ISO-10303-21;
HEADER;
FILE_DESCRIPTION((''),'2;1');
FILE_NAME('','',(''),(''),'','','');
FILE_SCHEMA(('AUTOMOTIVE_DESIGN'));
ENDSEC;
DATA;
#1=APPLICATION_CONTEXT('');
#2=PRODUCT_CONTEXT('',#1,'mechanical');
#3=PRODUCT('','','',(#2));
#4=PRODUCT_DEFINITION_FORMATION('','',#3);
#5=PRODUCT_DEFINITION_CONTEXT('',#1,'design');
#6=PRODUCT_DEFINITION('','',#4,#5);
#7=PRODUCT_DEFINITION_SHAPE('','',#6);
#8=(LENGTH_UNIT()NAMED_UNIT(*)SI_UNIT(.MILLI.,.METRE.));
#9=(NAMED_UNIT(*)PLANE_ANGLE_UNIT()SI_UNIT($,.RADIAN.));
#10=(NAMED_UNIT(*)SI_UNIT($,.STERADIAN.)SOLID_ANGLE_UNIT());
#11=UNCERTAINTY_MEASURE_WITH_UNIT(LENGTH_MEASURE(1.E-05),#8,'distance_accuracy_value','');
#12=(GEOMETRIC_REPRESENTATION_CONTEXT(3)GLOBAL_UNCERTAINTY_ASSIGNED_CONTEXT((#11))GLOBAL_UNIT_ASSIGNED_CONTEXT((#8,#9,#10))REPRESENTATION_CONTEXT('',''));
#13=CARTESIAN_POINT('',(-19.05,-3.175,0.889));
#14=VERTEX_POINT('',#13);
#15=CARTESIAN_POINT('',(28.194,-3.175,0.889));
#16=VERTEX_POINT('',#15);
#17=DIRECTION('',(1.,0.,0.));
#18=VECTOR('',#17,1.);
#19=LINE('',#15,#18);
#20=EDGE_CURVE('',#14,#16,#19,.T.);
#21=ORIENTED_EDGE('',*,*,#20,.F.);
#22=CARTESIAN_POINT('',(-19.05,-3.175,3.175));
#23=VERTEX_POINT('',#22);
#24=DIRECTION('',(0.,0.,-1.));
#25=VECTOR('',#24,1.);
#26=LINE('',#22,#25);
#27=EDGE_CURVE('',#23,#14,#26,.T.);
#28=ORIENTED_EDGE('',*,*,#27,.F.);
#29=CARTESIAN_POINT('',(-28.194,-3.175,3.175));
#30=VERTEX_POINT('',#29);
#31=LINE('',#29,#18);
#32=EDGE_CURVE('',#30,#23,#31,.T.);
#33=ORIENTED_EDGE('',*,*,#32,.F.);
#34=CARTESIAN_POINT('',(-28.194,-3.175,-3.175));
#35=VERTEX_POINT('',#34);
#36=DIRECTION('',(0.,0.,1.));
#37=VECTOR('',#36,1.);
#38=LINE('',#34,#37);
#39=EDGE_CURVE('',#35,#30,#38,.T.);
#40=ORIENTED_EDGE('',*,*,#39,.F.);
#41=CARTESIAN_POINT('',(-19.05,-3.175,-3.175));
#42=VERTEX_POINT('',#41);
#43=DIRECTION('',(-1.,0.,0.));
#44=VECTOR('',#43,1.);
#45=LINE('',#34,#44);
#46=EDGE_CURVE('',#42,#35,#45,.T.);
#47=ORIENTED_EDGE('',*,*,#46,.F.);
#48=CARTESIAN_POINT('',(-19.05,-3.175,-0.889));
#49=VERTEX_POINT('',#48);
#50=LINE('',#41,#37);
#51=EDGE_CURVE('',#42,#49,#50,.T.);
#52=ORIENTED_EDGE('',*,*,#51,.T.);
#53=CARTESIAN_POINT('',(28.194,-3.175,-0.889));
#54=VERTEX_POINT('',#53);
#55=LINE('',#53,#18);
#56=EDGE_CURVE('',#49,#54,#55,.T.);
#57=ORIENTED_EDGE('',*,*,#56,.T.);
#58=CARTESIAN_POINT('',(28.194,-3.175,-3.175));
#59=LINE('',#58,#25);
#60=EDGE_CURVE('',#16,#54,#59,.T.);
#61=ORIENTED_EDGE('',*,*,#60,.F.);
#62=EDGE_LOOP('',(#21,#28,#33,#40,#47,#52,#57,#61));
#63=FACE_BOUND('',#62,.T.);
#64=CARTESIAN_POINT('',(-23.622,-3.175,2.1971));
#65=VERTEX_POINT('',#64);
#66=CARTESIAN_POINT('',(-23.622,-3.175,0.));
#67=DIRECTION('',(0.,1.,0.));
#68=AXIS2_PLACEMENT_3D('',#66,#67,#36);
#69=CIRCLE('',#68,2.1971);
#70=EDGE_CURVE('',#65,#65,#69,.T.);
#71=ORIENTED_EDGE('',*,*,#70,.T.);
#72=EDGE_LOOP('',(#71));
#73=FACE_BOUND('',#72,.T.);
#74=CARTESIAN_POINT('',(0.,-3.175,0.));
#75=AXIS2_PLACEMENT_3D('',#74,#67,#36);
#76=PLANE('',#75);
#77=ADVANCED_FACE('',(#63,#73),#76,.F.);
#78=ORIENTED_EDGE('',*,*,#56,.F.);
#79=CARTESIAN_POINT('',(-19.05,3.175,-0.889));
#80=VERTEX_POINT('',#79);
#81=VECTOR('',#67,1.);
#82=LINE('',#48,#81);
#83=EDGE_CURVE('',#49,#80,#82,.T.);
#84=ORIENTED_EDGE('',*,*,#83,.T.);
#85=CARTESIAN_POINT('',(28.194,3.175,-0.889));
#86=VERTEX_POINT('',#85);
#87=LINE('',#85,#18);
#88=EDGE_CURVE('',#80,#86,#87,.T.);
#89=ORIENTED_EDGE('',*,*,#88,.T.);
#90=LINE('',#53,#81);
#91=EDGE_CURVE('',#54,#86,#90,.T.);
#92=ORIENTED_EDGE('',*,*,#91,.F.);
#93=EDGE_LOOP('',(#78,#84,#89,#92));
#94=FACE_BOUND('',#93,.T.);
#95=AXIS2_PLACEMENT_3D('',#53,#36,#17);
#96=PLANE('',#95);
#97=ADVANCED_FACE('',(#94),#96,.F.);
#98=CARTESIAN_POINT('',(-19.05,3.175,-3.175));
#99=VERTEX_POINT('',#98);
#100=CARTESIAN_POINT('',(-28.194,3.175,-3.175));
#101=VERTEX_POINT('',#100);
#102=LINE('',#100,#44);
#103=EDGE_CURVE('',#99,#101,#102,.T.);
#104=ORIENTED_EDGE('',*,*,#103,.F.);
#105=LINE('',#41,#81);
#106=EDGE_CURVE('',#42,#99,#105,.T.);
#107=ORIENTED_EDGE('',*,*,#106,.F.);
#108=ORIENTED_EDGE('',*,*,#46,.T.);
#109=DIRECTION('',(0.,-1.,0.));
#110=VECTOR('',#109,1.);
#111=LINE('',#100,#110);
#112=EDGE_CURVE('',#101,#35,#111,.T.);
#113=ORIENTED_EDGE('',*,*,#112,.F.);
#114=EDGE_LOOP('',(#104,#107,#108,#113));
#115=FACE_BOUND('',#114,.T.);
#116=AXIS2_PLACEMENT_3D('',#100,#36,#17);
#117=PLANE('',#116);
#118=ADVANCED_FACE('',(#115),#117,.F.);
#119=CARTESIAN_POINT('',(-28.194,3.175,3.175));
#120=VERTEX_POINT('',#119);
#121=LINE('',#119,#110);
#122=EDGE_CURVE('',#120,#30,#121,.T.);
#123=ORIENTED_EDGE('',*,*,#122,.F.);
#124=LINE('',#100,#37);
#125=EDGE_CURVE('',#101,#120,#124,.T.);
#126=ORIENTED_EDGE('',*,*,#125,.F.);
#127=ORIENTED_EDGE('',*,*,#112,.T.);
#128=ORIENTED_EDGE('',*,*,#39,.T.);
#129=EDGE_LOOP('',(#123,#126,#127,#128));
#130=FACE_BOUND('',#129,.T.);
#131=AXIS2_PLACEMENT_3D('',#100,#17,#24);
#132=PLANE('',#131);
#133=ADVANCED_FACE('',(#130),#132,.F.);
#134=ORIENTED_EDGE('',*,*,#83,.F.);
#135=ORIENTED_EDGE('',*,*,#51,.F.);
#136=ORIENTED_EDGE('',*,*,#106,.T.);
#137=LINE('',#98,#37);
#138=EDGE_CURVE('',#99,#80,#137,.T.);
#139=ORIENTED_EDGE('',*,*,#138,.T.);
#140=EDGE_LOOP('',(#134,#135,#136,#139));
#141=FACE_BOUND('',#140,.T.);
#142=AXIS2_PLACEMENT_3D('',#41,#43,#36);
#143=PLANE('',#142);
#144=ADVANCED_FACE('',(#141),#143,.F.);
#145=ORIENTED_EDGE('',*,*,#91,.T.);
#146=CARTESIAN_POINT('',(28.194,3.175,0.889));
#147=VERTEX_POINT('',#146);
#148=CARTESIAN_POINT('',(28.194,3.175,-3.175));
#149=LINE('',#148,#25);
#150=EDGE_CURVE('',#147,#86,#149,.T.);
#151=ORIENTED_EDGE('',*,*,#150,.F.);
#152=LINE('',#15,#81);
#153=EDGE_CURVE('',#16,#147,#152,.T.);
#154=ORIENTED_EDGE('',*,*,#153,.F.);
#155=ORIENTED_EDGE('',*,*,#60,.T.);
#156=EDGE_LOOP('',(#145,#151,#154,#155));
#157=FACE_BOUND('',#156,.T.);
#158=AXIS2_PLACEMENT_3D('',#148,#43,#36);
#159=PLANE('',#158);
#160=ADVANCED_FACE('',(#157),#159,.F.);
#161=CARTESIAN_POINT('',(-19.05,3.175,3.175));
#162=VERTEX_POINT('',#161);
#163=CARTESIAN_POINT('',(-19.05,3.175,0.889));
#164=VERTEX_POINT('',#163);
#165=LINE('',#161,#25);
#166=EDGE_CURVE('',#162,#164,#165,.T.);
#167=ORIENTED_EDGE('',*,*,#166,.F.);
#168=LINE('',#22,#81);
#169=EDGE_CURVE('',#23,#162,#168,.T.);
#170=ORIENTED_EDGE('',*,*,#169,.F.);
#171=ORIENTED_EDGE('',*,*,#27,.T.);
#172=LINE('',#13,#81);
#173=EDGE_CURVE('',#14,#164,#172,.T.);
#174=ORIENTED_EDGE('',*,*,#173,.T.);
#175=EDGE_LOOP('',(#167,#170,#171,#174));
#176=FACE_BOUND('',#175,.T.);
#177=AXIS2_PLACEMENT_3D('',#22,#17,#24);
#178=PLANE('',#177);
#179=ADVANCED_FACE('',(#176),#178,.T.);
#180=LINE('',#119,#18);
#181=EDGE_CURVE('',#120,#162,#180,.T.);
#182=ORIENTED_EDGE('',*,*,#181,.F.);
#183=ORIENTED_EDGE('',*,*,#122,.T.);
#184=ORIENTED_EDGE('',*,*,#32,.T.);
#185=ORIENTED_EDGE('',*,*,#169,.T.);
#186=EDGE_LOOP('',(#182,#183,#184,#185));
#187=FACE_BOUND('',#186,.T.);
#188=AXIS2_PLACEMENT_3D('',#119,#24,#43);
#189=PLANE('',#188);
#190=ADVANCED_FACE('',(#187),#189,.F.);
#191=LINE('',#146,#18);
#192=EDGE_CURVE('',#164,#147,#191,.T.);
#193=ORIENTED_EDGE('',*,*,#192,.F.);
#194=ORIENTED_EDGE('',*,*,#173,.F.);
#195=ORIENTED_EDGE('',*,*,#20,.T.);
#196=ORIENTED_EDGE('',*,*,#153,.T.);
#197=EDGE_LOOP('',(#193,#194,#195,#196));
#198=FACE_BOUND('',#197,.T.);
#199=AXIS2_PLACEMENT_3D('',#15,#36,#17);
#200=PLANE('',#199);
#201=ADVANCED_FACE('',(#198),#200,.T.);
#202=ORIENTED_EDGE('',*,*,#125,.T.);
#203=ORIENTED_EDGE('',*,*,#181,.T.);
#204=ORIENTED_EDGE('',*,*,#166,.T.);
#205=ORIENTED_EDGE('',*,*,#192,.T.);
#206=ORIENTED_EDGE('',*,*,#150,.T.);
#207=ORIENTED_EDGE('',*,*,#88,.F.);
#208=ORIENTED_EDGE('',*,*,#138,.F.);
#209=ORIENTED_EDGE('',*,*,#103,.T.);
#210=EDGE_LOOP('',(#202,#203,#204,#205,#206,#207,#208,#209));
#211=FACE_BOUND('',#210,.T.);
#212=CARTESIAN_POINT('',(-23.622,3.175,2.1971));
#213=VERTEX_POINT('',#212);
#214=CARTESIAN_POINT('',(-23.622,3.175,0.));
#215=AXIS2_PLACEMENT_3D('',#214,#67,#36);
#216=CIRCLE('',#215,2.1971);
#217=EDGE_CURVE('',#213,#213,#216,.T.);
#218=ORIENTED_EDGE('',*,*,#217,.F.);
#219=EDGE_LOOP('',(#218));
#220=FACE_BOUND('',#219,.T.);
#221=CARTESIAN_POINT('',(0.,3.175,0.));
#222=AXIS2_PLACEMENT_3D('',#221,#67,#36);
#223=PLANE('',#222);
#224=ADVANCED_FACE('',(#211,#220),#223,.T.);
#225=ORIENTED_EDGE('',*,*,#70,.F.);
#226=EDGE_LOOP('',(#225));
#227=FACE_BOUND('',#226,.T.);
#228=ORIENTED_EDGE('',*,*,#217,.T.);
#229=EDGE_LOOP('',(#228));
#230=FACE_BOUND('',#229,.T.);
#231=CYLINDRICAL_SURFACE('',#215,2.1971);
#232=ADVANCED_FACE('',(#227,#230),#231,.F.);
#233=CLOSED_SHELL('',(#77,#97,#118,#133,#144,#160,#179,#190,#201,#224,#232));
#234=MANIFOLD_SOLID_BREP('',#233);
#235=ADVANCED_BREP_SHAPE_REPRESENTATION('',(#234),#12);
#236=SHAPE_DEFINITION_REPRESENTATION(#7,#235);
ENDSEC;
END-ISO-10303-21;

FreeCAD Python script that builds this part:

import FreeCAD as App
import Part
import Sketcher
Q = App.Units.Quantity

doc = App.newDocument("Part")
body = doc.addObject("PartDesign::Body", "Body")

# Sketch on XZ plane
sketch1 = body.newObject("Sketcher::SketchObject", "Sketch")
sketch1.AttachmentSupport = (doc.getObject("XZ_Plane"), [""])
sketch1.MapMode = "FlatFace"
sketch1.addGeometry([
    Part.LineSegment(App.Vector(-28, -3, 0), App.Vector(-28, 3, 0)),
    Part.LineSegment(App.Vector(-28, 3, 0), App.Vector(28, 3, 0)),
    Part.LineSegment(App.Vector(28, 3, 0), App.Vector(28, -3, 0)),
    Part.LineSegment(App.Vector(28, -3, 0), App.Vector(-28, -3, 0)),
], False)
sketch1.addConstraint([
    Sketcher.Constraint("Coincident", 0, 2, 1, 1),
    Sketcher.Constraint("Coincident", 1, 2, 2, 1),
    Sketcher.Constraint("Coincident", 2, 2, 3, 1),
    Sketcher.Constraint("Coincident", 3, 2, 0, 1),
    Sketcher.Constraint("Vertical", 0),
    Sketcher.Constraint("Horizontal", 1),
    Sketcher.Constraint("Vertical", 2),
    Sketcher.Constraint("Horizontal", 3),
    Sketcher.Constraint("Symmetric", 0, 2, 2, 2, -1, 1),
    Sketcher.Constraint("DistanceX", 1, 1, 1, 2, Q("2.22 in")),
    Sketcher.Constraint("DistanceY", 0, 1, 0, 2, Q("0.25 in")),
])
pad1 = body.newObject("PartDesign::Pad", "Pad")
pad1.Profile = sketch1
pad1.Length = Q("0.25 in")
pad1.Midplane = True

# Sketch on XZ plane
sketch2 = body.newObject("Sketcher::SketchObject", "Sketch001")
sketch2.AttachmentSupport = (doc.getObject("XZ_Plane"), [""])
sketch2.MapMode = "FlatFace"
sketch2.AttachmentOffset = App.Placement(App.Vector(0, 0, -0.125 * 25.4), App.Rotation())
sketch2.addGeometry(Part.Circle(App.Vector(-23.6, 0, 0), App.Vector(0, 0, 1), 2.2), False)
sketch2.addConstraint([
    Sketcher.Constraint("PointOnObject", 0, 3, -1),
    Sketcher.Constraint("Diameter", 0, Q("0.173 in")),
    Sketcher.Constraint("DistanceX", 0, 3, -1, 1, Q("0.93 in")),
])
doc.recompute()
hole = body.newObject("PartDesign::Hole", "Hole")
hole.Profile = sketch2
hole.ThreadType = "None"
hole.Diameter = Q("0.173 in")
hole.DepthType = "ThroughAll"
hole.Reversed = True

# Sketch on XZ plane
sketch3 = body.newObject("Sketcher::SketchObject", "Sketch002")
sketch3.AttachmentSupport = (doc.getObject("XZ_Plane"), [""])
sketch3.MapMode = "FlatFace"
sketch3.AttachmentOffset = App.Placement(App.Vector(0, 0, -0.125 * 25.4), App.Rotation())
sketch3.addGeometry([
    Part.LineSegment(App.Vector(-19.1, -3.2, 0), App.Vector(-19.1, -0.9, 0)),
    Part.LineSegment(App.Vector(-19.1, -0.9, 0), App.Vector(28.2, -0.9, 0)),
    Part.LineSegment(App.Vector(28.2, -0.9, 0), App.Vector(28.2, -3.2, 0)),
    Part.LineSegment(App.Vector(28.2, -3.2, 0), App.Vector(-19.1, -3.2, 0)),
], False)
sketch3.addConstraint([
    Sketcher.Constraint("Coincident", 0, 2, 1, 1),
    Sketcher.Constraint("Coincident", 1, 2, 2, 1),
    Sketcher.Constraint("Coincident", 2, 2, 3, 1),
    Sketcher.Constraint("Coincident", 3, 2, 0, 1),
    Sketcher.Constraint("Vertical", 0),
    Sketcher.Constraint("Horizontal", 1),
    Sketcher.Constraint("Vertical", 2),
    Sketcher.Constraint("Horizontal", 3),
    Sketcher.Constraint("DistanceX", 1, 1, 1, 2, Q("1.86 in")),
    Sketcher.Constraint("DistanceY", 0, 1, 0, 2, Q("0.09 in")),
    Sketcher.Constraint("DistanceX", 0, 2, -1, 1, Q("0.75 in")),
    Sketcher.Constraint("DistanceY", 0, 2, -1, 1, Q("0.035 in")),
])
pocket1 = body.newObject("PartDesign::Pocket", "Pocket")
pocket1.Profile = sketch3
pocket1.Type = "ThroughAll"
pocket1.Reversed = True
doc.recompute()

mirrored = body.newObject("PartDesign::Mirrored", "Mirrored")
mirrored.Originals = [pocket1]
mirrored.MirrorPlane = (doc.getObject("XY_Plane"), [""])
body.Tip = mirrored

doc.recompute()
